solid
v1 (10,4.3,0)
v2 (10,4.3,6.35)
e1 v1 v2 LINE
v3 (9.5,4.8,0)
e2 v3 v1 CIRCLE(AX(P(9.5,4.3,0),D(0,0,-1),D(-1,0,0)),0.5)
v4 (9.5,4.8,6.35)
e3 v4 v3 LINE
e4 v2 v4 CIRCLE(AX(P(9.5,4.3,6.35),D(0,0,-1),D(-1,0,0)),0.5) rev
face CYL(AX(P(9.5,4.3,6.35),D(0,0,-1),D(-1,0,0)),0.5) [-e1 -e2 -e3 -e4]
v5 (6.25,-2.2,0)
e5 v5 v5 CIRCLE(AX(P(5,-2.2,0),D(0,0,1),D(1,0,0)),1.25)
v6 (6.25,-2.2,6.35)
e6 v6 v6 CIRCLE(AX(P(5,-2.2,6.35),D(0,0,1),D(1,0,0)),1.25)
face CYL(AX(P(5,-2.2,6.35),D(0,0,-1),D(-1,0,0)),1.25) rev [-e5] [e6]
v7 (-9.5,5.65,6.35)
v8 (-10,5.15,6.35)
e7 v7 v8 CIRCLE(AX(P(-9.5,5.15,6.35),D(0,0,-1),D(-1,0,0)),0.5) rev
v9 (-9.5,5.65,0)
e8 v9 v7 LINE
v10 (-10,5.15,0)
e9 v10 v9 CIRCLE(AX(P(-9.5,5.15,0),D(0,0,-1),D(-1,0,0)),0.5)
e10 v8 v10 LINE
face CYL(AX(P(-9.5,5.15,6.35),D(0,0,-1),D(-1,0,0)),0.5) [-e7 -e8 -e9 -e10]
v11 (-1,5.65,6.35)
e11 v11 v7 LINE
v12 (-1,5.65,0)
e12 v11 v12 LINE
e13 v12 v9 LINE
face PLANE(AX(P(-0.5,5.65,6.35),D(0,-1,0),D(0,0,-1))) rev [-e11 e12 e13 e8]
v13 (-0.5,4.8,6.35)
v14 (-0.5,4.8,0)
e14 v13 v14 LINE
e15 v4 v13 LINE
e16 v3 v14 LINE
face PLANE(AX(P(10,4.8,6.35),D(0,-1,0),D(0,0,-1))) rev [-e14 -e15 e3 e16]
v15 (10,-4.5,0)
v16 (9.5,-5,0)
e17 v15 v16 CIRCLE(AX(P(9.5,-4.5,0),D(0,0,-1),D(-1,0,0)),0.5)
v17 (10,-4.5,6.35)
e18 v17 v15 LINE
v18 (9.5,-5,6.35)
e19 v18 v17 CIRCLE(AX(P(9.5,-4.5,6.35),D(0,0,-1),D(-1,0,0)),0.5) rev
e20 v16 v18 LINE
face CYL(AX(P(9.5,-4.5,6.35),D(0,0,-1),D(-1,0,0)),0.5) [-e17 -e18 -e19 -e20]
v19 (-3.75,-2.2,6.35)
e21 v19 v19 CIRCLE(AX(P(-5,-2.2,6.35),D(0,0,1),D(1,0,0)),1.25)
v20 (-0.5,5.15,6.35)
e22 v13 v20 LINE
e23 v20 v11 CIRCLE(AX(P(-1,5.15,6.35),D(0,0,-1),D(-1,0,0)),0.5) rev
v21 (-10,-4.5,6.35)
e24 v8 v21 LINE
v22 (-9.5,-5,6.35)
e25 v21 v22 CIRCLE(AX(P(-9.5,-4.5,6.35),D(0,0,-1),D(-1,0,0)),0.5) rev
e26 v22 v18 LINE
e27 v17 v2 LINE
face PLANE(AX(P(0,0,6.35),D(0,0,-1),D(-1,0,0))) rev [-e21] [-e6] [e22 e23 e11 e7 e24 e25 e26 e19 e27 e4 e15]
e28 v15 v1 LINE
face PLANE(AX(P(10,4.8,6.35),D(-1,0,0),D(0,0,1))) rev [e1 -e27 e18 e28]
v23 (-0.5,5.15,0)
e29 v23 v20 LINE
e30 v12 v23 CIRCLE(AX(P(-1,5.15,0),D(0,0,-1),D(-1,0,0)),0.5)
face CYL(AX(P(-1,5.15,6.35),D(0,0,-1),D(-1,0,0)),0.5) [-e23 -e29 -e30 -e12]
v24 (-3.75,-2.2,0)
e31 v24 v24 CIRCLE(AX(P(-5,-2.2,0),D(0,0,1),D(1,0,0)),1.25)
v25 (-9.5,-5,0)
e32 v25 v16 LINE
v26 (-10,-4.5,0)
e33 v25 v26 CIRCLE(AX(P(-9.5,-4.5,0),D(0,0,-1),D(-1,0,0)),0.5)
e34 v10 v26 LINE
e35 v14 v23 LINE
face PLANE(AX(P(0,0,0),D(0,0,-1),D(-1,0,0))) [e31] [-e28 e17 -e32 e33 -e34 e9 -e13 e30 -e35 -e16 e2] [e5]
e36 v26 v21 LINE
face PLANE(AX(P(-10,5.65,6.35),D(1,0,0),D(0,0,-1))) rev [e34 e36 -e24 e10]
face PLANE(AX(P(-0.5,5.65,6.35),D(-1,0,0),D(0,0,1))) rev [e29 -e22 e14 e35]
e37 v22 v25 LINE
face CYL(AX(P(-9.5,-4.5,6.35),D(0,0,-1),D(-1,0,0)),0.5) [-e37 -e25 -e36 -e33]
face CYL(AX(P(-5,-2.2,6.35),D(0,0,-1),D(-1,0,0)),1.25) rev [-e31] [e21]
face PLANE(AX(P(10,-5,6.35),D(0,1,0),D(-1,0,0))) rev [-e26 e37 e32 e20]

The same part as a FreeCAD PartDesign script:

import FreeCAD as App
import Part
import Sketcher

V = App.Vector
Q = App.Units.Quantity


def edges_at(feature, points):
    """Names of the edges that pass closest to the given points."""
    edges = feature.Shape.Edges
    near = lambda p: min(range(len(edges)), key=lambda i: edges[i].distToShape(Part.Vertex(*p))[0])
    return sorted({f"Edge{near(p) + 1}" for p in points})


def add_polygon(sketch, points):
    """Adds a closed chain of lines whose ends are joined by coincident constraints."""
    first, n = sketch.GeometryCount, len(points)
    for a, b in zip(points, points[1:] + points[:1]):
        sketch.addGeometry(Part.LineSegment(App.Vector(*a, 0), App.Vector(*b, 0)), False)
    for i in range(n):
        sketch.addConstraint(Sketcher.Constraint("Coincident", first + i, 2, first + (i + 1) % n, 1))

doc = App.newDocument("Part")
body = doc.addObject("PartDesign::Body", "Body")

# Sketch on XY plane
sketch1 = body.newObject("Sketcher::SketchObject", "Sketch")
sketch1.AttachmentSupport = (doc.getObject("XY_Plane"), [""])
sketch1.MapMode = "FlatFace"
add_polygon(sketch1, [(10, 4.8), (-0.5, 4.8), (-0.5, 5.65), (-10, 5.65), (-10, -5), (10, -5)])  # lines 0-5
sketch1.addGeometry(Part.Circle(V(-5, -2.2, 0), V(0, 0, 1), 1.25), False)  # 6
sketch1.addGeometry(Part.Circle(V(5, -2.2, 0), V(0, 0, 1), 1.25), False)  # 7
sketch1.addConstraint(Sketcher.Constraint("Horizontal", 0))
sketch1.addConstraint(Sketcher.Constraint("Vertical", 1))
sketch1.addConstraint(Sketcher.Constraint("Horizontal", 2))
sketch1.addConstraint(Sketcher.Constraint("Vertical", 3))
sketch1.addConstraint(Sketcher.Constraint("Horizontal", 4))
sketch1.addConstraint(Sketcher.Constraint("Vertical", 5))
sketch1.addConstraint(Sketcher.Constraint("Equal", 6, 7))
sketch1.addConstraint(Sketcher.Constraint("Symmetric", 6, 3, 7, 3, -2))
sketch1.addConstraint(Sketcher.Constraint("Diameter", 6, Q("2.5 mm")))
sketch1.addConstraint(Sketcher.Constraint("DistanceX", 4, 1, 4, 2, Q("20 mm")))
sketch1.addConstraint(Sketcher.Constraint("DistanceX", 0, 2, 0, 1, Q("10.5 mm")))
sketch1.addConstraint(Sketcher.Constraint("DistanceY", 5, 1, 5, 2, Q("9.8 mm")))
sketch1.addConstraint(Sketcher.Constraint("DistanceX", 6, 3, -1, 1, Q("5 mm")))
sketch1.addConstraint(Sketcher.Constraint("DistanceX", 2, 2, -1, 1, Q("10 mm")))
sketch1.addConstraint(Sketcher.Constraint("DistanceY", 3, 2, -1, 1, Q("5 mm")))
sketch1.addConstraint(Sketcher.Constraint("DistanceY", 6, 3, 0, 2, Q("7 mm")))
sketch1.addConstraint(Sketcher.Constraint("DistanceY", 1, 1, 1, 2, Q("0.85 mm")))
pad1 = body.newObject("PartDesign::Pad", "Pad")
pad1.Profile = sketch1
pad1.Length = 6.35
doc.recompute()

fillet = body.newObject("PartDesign::Fillet", "Fillet")
fillet.Base = (pad1, edges_at(pad1, [
    (-10, 5.65, 3.175),
    (-0.5, 5.65, 3.175),
    (10, 4.8, 3.175),
    (10, -5, 3.175),
    (-10, -5, 3.175),
]))
fillet.Radius = 0.5

doc.recompute()
